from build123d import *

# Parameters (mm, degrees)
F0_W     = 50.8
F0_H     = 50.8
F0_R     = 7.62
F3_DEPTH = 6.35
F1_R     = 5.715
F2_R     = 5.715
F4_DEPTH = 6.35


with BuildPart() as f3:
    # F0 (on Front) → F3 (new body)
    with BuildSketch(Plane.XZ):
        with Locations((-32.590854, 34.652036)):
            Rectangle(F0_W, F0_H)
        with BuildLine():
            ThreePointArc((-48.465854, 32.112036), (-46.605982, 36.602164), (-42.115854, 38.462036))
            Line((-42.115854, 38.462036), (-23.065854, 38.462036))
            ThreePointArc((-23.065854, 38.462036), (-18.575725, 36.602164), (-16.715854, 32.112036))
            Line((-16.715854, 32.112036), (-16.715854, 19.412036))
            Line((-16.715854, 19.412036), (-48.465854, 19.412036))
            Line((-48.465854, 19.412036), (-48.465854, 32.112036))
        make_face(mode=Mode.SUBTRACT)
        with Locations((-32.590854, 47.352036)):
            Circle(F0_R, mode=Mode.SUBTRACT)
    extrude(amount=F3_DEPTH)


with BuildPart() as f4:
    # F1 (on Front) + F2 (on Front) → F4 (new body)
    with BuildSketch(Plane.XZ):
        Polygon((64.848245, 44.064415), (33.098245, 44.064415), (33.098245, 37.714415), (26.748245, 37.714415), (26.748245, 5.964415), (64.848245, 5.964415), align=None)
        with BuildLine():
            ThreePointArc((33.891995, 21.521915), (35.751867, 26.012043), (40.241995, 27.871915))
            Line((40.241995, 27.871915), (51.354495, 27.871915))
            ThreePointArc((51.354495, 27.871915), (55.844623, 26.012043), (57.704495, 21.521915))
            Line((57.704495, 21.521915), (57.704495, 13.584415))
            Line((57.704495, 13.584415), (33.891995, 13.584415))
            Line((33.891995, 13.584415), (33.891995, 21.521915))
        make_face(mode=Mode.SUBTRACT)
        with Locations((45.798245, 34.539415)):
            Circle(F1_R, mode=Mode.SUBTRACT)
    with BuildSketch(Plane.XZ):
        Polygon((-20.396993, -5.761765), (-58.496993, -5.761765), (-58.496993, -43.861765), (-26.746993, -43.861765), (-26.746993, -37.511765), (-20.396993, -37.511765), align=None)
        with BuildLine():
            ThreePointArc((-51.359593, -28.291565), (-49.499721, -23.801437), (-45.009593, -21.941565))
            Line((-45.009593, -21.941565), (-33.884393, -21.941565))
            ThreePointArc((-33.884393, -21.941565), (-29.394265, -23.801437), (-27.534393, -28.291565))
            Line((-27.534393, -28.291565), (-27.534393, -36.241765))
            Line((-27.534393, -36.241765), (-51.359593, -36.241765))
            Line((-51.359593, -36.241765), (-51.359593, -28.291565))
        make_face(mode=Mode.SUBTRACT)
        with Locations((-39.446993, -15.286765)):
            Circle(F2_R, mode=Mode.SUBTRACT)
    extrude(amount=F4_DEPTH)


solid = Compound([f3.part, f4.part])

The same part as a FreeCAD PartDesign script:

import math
import FreeCAD as App
import Part
import Sketcher

V = App.Vector
Q = App.Units.Quantity

doc = App.newDocument("Part")
body = doc.addObject("PartDesign::Body", "Body")

sketch1 = doc.addObject("Sketcher::SketchObject", "Sketch")
body.addObject(sketch1)
sketch1.AttachmentSupport = (doc.XZ_Plane, [""])
sketch1.MapMode = "FlatFace"
sketch1.addGeometry([
    Part.LineSegment(V(-57.990854, 60.052036, 0), V(-57.990854, 9.252036, 0)),
    Part.LineSegment(V(-57.990854, 9.252036, 0), V(-7.190854, 9.252036, 0)),
    Part.LineSegment(V(-7.190854, 9.252036, 0), V(-7.190854, 60.052036, 0)),
    Part.LineSegment(V(-7.190854, 60.052036, 0), V(-57.990854, 60.052036, 0)),
    Part.LineSegment(V(-48.465854, 19.412036, 0), V(-48.465854, 32.112036, 0)),
    Part.ArcOfCircle(Part.Circle(V(-42.115854, 32.112036, 0), V(0, 0, 1), 6.35), math.radians(90.000002), math.radians(179.999998)),
    Part.LineSegment(V(-42.115854, 38.462036, 0), V(-23.065854, 38.462036, 0)),
    Part.ArcOfCircle(Part.Circle(V(-23.065852, 32.112037, 0), V(0, 0, 1), 6.349998), math.radians(-0.000014), math.radians(90.000014)),
    Part.LineSegment(V(-16.715854, 32.112036, 0), V(-16.715854, 19.412036, 0)),
    Part.LineSegment(V(-16.715854, 19.412036, 0), V(-48.465854, 19.412036, 0)),
    Part.Circle(V(-32.590854, 47.352036, 0), V(0, 0, 1), 7.62),
], False)
sketch1.addConstraint([
    Sketcher.Constraint("Coincident", 0, 2, 1, 1),
    Sketcher.Constraint("Coincident", 1, 2, 2, 1),
    Sketcher.Constraint("Coincident", 2, 2, 3, 1),
    Sketcher.Constraint("Coincident", 3, 2, 0, 1),
    Sketcher.Constraint("Tangent", 4, 2, 5, 2),
    Sketcher.Constraint("Tangent", 5, 1, 6, 1),
    Sketcher.Constraint("Tangent", 6, 2, 7, 2),
    Sketcher.Constraint("Tangent", 7, 1, 8, 1),
    Sketcher.Constraint("Coincident", 8, 2, 9, 1),
    Sketcher.Constraint("Coincident", 9, 2, 4, 1),
    Sketcher.Constraint("Vertical", 0),
    Sketcher.Constraint("Horizontal", 1),
    Sketcher.Constraint("Vertical", 2),
    Sketcher.Constraint("Horizontal", 3),
    Sketcher.Constraint("Vertical", 4),
    Sketcher.Constraint("Horizontal", 6),
    Sketcher.Constraint("Vertical", 8),
    Sketcher.Constraint("Horizontal", 9),
    Sketcher.Constraint("Equal", 5, 7),
    Sketcher.Constraint("Equal", 3, 0),
    Sketcher.Constraint("Diameter", 10, Q("0.6 in")),
    Sketcher.Constraint("DistanceX", 1, 1, 1, 2, Q("2 in")),
    Sketcher.Constraint("Radius", 5, Q("0.25 in")),
    Sketcher.Constraint("DistanceY", 4, 1, 4, 2, Q("0.5 in")),
    Sketcher.Constraint("DistanceX", 0, 2, 10, 3, Q("1 in")),
    Sketcher.Constraint("DistanceX", 4, 2, 7, 3, Q("1.0000001 in")),
    Sketcher.Constraint("DistanceY", 7, 3, 10, 3, Q("0.5999999 in")),
    Sketcher.Constraint("DistanceY", 0, 2, 5, 3, Q("0.9 in")),
    Sketcher.Constraint("DistanceX", 10, 3, 7, 3, Q("0.3750001 in")),
    Sketcher.Constraint("DistanceX", 5, 3, -1, 1, Q("42.115854 mm")),
    Sketcher.Constraint("DistanceY", -1, 1, 5, 3, Q("32.112036 mm")),
])
pad1 = doc.addObject("PartDesign::Pad", "Pad")
body.addObject(pad1)
pad1.Profile = sketch1
pad1.Length = Q("0.25 in")
body2 = doc.addObject("PartDesign::Body", "Body001")
body2.AllowCompound = True

sketch2 = doc.addObject("Sketcher::SketchObject", "Sketch001")
body2.addObject(sketch2)
sketch2.AttachmentSupport = (doc.getObject("XZ_Plane001"), [""])
sketch2.MapMode = "FlatFace"
sketch2.addGeometry([
    Part.LineSegment(V(64.848245, 44.064415, 0), V(33.098245, 44.064415, 0)),
    Part.LineSegment(V(33.098245, 44.064415, 0), V(33.098245, 37.714415, 0)),
    Part.LineSegment(V(33.098245, 37.714415, 0), V(26.748245, 37.714415, 0)),
    Part.LineSegment(V(26.748245, 37.714415, 0), V(26.748245, 5.964415, 0)),
    Part.LineSegment(V(26.748245, 5.964415, 0), V(64.848245, 5.964415, 0)),
    Part.LineSegment(V(64.848245, 5.964415, 0), V(64.848245, 44.064415, 0)),
    Part.LineSegment(V(33.891995, 13.584415, 0), V(33.891995, 21.521915, 0)),
    Part.ArcOfCircle(Part.Circle(V(40.241995, 21.521915, 0), V(0, 0, 1), 6.35), math.radians(90.000002), math.radians(179.999998)),
    Part.LineSegment(V(40.241995, 27.871915, 0), V(51.354495, 27.871915, 0)),
    Part.ArcOfCircle(Part.Circle(V(51.354495, 21.521915, 0), V(0, 0, 1), 6.35), math.radians(0.000002), math.radians(89.999998)),
    Part.LineSegment(V(57.704495, 21.521915, 0), V(57.704495, 13.584415, 0)),
    Part.LineSegment(V(57.704495, 13.584415, 0), V(33.891995, 13.584415, 0)),
    Part.Circle(V(45.798245, 34.539415, 0), V(0, 0, 1), 5.715),
    Part.LineSegment(V(-20.396993, -5.761765, 0), V(-58.496993, -5.761765, 0)),
    Part.LineSegment(V(-58.496993, -5.761765, 0), V(-58.496993, -43.861765, 0)),
    Part.LineSegment(V(-58.496993, -43.861765, 0), V(-26.746993, -43.861765, 0)),
    Part.LineSegment(V(-26.746993, -43.861765, 0), V(-26.746993, -37.511765, 0)),
    Part.LineSegment(V(-26.746993, -37.511765, 0), V(-20.396993, -37.511765, 0)),
    Part.LineSegment(V(-20.396993, -37.511765, 0), V(-20.396993, -5.761765, 0)),
    Part.LineSegment(V(-51.359593, -36.241765, 0), V(-51.359593, -28.291565, 0)),
    Part.ArcOfCircle(Part.Circle(V(-45.009593, -28.291565, 0), V(0, 0, 1), 6.35), math.radians(90.000002), math.radians(179.999998)),
    Part.LineSegment(V(-45.009593, -21.941565, 0), V(-33.884393, -21.941565, 0)),
    Part.ArcOfCircle(Part.Circle(V(-33.884393, -28.291565, 0), V(0, 0, 1), 6.35), math.radians(0.000002), math.radians(89.999998)),
    Part.LineSegment(V(-27.534393, -28.291565, 0), V(-27.534393, -36.241765, 0)),
    Part.LineSegment(V(-27.534393, -36.241765, 0), V(-51.359593, -36.241765, 0)),
    Part.Circle(V(-39.446993, -15.286765, 0), V(0, 0, 1), 5.715),
], False)
sketch2.addConstraint([
    Sketcher.Constraint("Coincident", 0, 2, 1, 1),
    Sketcher.Constraint("Coincident", 1, 2, 2, 1),
    Sketcher.Constraint("Coincident", 2, 2, 3, 1),
    Sketcher.Constraint("Coincident", 3, 2, 4, 1),
    Sketcher.Constraint("Coincident", 4, 2, 5, 1),
    Sketcher.Constraint("Coincident", 5, 2, 0, 1),
    Sketcher.Constraint("Tangent", 6, 2, 7, 2),
    Sketcher.Constraint("Tangent", 7, 1, 8, 1),
    Sketcher.Constraint("Tangent", 8, 2, 9, 2),
    Sketcher.Constraint("Tangent", 9, 1, 10, 1),
    Sketcher.Constraint("Coincident", 10, 2, 11, 1),
    Sketcher.Constraint("Coincident", 11, 2, 6, 1),
    Sketcher.Constraint("Coincident", 13, 2, 14, 1),
    Sketcher.Constraint("Coincident", 14, 2, 15, 1),
    Sketcher.Constraint("Coincident", 15, 2, 16, 1),
    Sketcher.Constraint("Coincident", 16, 2, 17, 1),
    Sketcher.Constraint("Coincident", 17, 2, 18, 1),
    Sketcher.Constraint("Coincident", 18, 2, 13, 1),
    Sketcher.Constraint("Tangent", 19, 2, 20, 2),
    Sketcher.Constraint("Tangent", 20, 1, 21, 1),
    Sketcher.Constraint("Tangent", 21, 2, 22, 2),
    Sketcher.Constraint("Tangent", 22, 1, 23, 1),
    Sketcher.Constraint("Coincident", 23, 2, 24, 1),
    Sketcher.Constraint("Coincident", 24, 2, 19, 1),
    Sketcher.Constraint("Horizontal", 0),
    Sketcher.Constraint("Vertical", 1),
    Sketcher.Constraint("Horizontal", 2),
    Sketcher.Constraint("Vertical", 3),
    Sketcher.Constraint("Horizontal", 4),
    Sketcher.Constraint("Vertical", 5),
    Sketcher.Constraint("Vertical", 6),
    Sketcher.Constraint("Horizontal", 8),
    Sketcher.Constraint("Vertical", 10),
    Sketcher.Constraint("Horizontal", 11),
    Sketcher.Constraint("Horizontal", 13),
    Sketcher.Constraint("Vertical", 14),
    Sketcher.Constraint("Horizontal", 15),
    Sketcher.Constraint("Vertical", 16),
    Sketcher.Constraint("Horizontal", 17),
    Sketcher.Constraint("Vertical", 18),
    Sketcher.Constraint("Vertical", 19),
    Sketcher.Constraint("Horizontal", 21),
    Sketcher.Constraint("Vertical", 23),
    Sketcher.Constraint("Horizontal", 24),
    Sketcher.Constraint("Equal", 7, 9),
    Sketcher.Constraint("Equal", 9, 20),
    Sketcher.Constraint("Equal", 20, 22),
    Sketcher.Constraint("Equal", 12, 25),
    Sketcher.Constraint("Equal", 4, 13),
    Sketcher.Constraint("Equal", 0, 15),
    Sketcher.Constraint("Equal", 17, 1),
    Sketcher.Constraint("Equal", 15, 3),
    Sketcher.Constraint("Equal", 5, 14),
    Sketcher.Constraint("Equal", 1, 16),
    Sketcher.Constraint("Diameter", 12, Q("0.45 in")),
    Sketcher.Constraint("Radius", 7, Q("0.25 in")),
    Sketcher.Constraint("DistanceX", 4, 1, 4, 2, Q("1.5 in")),
    Sketcher.Constraint("DistanceX", 0, 2, 0, 1, Q("1.25 in")),
    Sketcher.Constraint("DistanceX", 0, 2, 12, 3, Q("0.5 in")),
    Sketcher.Constraint("DistanceY", 4, 2, 10, 2, Q("0.3 in")),
    Sketcher.Constraint("DistanceX", 25, 3, 15, 2, Q("0.5 in")),
    Sketcher.Constraint("DistanceY", 15, 2, 23, 2, Q("0.3 in")),
    Sketcher.Constraint("DistanceX", 8, 1, 8, 2, Q("0.4375 in")),
    Sketcher.Constraint("DistanceX", 21, 1, 21, 2, Q("0.438 in")),
    Sketcher.Constraint("DistanceY", 6, 1, 6, 2, Q("0.3125 in")),
    Sketcher.Constraint("DistanceY", 19, 1, 19, 2, Q("0.313 in")),
    Sketcher.Constraint("DistanceX", 7, 3, 12, 3, Q("0.21875 in")),
    Sketcher.Constraint("DistanceX", 25, 3, 22, 3, Q("0.219 in")),
    Sketcher.Constraint("DistanceY", 22, 3, 25, 3, Q("0.512 in")),
    Sketcher.Constraint("DistanceY", 12, 3, 0, 2, Q("0.375 in")),
    Sketcher.Constraint("DistanceX", 20, 3, 7, 3, Q("85.251588 mm")),
    Sketcher.Constraint("DistanceY", 20, 3, 7, 3, Q("49.81348 mm")),
    Sketcher.Constraint("DistanceX", -1, 1, 7, 3, Q("40.241995 mm")),
    Sketcher.Constraint("DistanceY", -1, 1, 7, 3, Q("21.521915 mm")),
])
pad2 = doc.addObject("PartDesign::Pad", "Pad001")
body2.addObject(pad2)
pad2.Profile = sketch2
pad2.Length = Q("0.25 in")

doc.recompute()
